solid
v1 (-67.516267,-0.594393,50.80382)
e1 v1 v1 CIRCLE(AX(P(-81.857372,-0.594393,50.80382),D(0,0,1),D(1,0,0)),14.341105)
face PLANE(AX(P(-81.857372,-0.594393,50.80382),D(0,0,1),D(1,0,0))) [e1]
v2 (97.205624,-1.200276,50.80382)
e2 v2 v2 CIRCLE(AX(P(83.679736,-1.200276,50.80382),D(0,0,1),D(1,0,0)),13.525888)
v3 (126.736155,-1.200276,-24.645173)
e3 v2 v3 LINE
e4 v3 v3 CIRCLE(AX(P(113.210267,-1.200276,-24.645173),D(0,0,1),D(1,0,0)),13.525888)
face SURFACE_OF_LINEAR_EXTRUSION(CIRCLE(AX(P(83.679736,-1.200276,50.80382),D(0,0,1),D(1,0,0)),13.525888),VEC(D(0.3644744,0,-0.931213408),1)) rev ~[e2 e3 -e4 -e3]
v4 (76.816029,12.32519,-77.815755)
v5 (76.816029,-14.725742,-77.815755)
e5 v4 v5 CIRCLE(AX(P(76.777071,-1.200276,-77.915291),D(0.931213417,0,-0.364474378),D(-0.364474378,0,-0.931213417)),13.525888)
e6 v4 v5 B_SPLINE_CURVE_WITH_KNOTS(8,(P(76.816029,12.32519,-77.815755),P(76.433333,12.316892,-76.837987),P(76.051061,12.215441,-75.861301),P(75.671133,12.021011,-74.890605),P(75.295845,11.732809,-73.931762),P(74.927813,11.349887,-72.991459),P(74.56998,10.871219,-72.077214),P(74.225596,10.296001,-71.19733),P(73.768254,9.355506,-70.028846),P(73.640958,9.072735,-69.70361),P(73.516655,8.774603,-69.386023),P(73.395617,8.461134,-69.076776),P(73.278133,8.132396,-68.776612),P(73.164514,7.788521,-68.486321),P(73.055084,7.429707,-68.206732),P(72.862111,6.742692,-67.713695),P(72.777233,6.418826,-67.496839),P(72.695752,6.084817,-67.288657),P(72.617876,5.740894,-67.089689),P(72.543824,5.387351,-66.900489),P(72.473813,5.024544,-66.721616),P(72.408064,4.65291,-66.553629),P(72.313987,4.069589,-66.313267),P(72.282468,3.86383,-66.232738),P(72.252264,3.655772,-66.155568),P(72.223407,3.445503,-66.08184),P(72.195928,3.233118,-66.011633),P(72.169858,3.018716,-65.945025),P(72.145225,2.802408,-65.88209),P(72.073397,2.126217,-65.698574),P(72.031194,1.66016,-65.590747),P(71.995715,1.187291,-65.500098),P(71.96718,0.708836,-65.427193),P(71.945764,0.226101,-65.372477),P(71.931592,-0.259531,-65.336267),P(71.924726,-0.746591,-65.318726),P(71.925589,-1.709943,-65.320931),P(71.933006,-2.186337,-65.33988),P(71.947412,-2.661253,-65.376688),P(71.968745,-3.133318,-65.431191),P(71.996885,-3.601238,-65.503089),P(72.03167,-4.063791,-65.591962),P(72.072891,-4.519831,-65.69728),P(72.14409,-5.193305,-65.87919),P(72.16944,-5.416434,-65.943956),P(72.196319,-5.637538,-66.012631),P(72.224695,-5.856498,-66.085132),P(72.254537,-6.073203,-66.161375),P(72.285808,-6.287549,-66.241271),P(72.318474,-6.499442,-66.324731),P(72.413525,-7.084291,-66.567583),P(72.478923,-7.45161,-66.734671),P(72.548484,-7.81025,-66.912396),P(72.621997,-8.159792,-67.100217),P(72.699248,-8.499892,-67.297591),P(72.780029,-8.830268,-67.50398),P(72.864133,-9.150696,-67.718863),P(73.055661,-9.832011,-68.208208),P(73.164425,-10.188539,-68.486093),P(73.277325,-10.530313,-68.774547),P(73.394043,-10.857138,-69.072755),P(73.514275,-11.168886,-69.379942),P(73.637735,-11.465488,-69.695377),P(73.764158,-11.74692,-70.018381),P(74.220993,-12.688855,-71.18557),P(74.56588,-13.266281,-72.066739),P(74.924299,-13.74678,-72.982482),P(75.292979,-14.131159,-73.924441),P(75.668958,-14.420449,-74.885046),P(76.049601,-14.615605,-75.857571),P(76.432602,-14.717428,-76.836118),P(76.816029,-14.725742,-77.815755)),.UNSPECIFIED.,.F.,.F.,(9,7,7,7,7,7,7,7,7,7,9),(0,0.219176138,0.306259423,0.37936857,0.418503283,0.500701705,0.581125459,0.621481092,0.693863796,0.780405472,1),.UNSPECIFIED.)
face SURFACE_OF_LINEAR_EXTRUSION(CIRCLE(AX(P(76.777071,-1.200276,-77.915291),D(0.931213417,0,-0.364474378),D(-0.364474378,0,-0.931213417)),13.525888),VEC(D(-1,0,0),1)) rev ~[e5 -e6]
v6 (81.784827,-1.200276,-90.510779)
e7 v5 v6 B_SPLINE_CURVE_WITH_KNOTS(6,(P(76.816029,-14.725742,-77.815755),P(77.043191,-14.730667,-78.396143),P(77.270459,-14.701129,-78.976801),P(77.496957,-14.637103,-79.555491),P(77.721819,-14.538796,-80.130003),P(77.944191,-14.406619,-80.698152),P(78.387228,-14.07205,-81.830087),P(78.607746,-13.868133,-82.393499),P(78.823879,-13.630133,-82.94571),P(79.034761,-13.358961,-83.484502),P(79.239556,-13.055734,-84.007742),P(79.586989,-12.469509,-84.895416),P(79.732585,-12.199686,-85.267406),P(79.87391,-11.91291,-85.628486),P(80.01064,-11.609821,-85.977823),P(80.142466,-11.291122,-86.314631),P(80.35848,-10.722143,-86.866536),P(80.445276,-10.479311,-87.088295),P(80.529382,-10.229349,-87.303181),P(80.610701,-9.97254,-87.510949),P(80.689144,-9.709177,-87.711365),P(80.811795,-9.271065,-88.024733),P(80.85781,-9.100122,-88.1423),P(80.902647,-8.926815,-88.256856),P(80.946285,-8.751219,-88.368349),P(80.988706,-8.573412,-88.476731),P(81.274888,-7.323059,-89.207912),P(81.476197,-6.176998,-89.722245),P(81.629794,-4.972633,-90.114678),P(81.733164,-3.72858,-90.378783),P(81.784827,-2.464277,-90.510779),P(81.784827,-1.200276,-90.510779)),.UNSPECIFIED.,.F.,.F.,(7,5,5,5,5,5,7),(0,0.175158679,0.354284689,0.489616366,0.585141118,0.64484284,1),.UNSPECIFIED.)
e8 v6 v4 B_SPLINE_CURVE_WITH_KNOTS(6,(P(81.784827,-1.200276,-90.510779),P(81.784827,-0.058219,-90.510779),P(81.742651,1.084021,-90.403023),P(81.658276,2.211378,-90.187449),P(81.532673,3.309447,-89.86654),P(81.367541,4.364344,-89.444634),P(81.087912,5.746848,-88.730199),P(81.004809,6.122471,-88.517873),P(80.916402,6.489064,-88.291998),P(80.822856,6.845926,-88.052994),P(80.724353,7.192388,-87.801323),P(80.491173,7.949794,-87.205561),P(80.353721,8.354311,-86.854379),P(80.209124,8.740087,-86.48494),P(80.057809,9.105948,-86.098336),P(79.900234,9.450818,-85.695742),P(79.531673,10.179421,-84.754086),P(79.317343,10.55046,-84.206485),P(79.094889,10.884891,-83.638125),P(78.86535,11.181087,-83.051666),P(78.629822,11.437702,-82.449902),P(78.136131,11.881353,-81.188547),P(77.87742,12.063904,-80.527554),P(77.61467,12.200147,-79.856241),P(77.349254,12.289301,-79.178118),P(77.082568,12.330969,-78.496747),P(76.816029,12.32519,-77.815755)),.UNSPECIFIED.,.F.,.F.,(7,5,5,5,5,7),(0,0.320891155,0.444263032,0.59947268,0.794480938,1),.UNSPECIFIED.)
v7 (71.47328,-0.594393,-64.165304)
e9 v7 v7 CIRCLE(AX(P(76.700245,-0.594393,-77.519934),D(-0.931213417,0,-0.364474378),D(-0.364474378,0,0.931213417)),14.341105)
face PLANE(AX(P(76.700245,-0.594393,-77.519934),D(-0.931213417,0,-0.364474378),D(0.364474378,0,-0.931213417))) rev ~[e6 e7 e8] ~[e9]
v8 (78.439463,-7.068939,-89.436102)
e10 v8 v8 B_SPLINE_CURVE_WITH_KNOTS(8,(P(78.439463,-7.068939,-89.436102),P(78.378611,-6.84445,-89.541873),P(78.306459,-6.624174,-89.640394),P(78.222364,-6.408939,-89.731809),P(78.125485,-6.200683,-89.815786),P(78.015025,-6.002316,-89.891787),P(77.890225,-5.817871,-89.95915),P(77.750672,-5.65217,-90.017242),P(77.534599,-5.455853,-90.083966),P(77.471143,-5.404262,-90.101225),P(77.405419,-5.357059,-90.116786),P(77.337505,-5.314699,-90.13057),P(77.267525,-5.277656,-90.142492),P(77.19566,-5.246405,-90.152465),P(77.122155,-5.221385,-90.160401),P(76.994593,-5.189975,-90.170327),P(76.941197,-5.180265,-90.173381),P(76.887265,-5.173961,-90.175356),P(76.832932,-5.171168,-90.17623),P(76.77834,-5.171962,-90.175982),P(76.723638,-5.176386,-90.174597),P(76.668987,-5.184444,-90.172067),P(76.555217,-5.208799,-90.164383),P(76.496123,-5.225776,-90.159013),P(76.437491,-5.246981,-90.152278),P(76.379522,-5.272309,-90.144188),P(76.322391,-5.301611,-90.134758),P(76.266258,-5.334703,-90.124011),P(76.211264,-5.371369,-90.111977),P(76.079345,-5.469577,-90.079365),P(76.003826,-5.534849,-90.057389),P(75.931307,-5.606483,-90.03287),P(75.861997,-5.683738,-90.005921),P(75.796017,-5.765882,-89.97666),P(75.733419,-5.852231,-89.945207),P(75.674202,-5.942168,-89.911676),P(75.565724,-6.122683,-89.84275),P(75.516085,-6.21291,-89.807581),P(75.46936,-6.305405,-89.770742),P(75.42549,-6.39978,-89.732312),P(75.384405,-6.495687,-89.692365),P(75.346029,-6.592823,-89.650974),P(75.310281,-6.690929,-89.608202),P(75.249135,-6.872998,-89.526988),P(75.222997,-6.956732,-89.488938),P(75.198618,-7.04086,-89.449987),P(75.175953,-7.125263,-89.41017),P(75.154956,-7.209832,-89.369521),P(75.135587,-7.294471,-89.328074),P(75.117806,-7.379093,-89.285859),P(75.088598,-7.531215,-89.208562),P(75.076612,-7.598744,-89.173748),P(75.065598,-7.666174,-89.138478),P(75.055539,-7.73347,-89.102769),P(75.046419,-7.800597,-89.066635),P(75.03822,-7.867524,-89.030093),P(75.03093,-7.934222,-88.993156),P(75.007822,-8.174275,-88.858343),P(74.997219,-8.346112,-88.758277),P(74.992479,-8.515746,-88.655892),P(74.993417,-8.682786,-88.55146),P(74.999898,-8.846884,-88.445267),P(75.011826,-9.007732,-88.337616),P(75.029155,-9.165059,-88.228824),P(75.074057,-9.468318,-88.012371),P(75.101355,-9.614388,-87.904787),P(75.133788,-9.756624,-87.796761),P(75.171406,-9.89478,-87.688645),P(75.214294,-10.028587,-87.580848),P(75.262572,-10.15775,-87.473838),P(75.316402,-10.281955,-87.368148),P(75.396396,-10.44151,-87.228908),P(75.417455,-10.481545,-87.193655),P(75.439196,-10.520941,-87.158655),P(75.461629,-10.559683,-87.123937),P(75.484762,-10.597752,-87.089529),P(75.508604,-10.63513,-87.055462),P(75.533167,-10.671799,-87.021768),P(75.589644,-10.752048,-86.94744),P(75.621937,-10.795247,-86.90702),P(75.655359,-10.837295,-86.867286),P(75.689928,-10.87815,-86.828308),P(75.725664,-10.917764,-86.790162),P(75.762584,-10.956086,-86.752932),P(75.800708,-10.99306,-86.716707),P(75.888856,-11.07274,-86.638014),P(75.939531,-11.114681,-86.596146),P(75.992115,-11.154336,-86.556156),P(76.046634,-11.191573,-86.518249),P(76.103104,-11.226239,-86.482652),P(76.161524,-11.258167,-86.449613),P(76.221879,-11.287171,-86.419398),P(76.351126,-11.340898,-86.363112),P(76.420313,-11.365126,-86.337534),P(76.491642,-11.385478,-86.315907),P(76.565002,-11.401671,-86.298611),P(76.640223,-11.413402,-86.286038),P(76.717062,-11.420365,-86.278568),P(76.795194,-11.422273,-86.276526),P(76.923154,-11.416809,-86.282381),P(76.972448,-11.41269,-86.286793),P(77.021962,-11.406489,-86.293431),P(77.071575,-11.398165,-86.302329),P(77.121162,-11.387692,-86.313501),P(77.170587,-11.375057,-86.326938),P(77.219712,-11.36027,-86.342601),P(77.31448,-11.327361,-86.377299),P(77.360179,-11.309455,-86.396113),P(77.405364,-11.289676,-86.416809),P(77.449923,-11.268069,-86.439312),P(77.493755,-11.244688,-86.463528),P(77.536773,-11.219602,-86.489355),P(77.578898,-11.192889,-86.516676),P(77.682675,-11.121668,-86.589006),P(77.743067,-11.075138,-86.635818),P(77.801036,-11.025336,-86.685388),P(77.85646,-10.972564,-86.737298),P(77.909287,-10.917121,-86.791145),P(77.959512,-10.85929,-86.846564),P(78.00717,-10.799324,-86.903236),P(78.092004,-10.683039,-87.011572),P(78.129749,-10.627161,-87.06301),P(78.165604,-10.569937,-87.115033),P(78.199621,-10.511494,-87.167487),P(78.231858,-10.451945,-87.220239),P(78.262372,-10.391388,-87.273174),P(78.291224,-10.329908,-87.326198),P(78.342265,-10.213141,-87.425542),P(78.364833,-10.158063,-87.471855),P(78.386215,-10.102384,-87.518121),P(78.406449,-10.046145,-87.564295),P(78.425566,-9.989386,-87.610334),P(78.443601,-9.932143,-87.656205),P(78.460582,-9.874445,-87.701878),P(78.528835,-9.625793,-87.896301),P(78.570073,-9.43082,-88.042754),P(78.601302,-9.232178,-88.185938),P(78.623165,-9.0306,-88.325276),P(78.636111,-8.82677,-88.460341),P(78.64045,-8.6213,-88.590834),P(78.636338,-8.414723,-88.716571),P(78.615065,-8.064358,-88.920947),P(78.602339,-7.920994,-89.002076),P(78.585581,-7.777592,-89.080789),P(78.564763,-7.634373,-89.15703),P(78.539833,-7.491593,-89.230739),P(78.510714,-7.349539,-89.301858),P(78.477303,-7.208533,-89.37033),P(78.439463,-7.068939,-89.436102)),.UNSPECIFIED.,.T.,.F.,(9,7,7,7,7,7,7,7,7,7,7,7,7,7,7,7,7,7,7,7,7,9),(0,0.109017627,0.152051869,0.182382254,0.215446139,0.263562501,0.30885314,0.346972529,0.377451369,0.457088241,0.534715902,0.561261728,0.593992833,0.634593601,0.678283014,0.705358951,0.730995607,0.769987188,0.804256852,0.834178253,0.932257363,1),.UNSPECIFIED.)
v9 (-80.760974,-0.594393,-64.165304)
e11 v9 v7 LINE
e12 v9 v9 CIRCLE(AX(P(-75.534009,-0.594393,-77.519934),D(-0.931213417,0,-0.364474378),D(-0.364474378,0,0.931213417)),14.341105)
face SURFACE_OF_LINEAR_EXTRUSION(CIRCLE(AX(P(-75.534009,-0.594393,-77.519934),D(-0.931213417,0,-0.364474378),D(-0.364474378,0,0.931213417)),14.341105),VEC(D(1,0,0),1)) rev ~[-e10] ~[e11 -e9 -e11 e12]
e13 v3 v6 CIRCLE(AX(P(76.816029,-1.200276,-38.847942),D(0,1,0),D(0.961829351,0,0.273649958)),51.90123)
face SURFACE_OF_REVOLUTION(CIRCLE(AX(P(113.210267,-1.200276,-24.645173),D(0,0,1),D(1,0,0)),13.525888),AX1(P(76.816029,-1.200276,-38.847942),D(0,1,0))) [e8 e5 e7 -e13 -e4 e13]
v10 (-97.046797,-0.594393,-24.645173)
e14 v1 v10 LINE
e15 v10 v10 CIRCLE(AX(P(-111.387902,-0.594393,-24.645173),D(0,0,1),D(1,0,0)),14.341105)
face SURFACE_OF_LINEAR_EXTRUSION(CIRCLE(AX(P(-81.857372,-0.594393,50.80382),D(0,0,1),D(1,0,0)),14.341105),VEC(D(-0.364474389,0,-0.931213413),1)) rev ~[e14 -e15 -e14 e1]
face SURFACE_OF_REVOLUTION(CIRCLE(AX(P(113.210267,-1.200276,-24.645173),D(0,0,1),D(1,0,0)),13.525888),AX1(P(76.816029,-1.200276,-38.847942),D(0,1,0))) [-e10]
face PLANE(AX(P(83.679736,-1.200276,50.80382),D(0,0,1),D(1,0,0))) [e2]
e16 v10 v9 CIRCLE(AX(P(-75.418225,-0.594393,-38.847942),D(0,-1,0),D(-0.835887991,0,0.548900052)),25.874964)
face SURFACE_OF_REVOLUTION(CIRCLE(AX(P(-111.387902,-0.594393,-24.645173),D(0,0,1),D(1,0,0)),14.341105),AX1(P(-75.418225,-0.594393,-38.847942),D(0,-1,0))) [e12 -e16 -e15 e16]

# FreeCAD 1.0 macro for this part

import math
import FreeCAD as App
import Part
import Sketcher
from FreeCAD import Vector
Q = App.Units.Quantity

doc = App.newDocument("Part")
body = doc.addObject("PartDesign::Body", "Body")

sketch1 = body.newObject("Sketcher::SketchObject", "Sketch")
sketch1.AttachmentSupport = (doc.getObject("XY_Plane"), [""])
sketch1.MapMode = "FlatFace"
sketch1.AttachmentOffset = App.Placement(Vector(0, 0, 50.80382), App.Rotation())
sketch1.addGeometry(Part.Circle(Vector(84, -1, 0), Vector(0, 0, 1), 14), False)
sketch1.addConstraint(Sketcher.Constraint("Diameter", 0, Q("27.051776 mm")))
sketch1.addConstraint(Sketcher.Constraint("DistanceX", -1, 1, 0, 3, Q("83.679736 mm")))
sketch1.addConstraint(Sketcher.Constraint("DistanceY", 0, 3, -1, 1, Q("1.200276 mm")))

sketch2 = body.newObject("Sketcher::SketchObject", "Sketch001")
sketch2.AttachmentSupport = (doc.getObject("XZ_Plane"), [""])
sketch2.MapMode = "FlatFace"
sketch2.addGeometry(Part.LineSegment(Vector(84, 51, 0), Vector(113, -25, 0)), False)
sketch2.addGeometry(Part.ArcOfCircle(Part.Circle(Vector(77, -39, 0), Vector(0, 0, 1), 39), math.radians(-90), math.radians(21)), False)
sketch2.addGeometry(Part.LineSegment(Vector(77, -78, 0), Vector(-75, -78, 0)), False)
sketch2.addConstraint(Sketcher.Constraint("Tangent", 0, 2, 1, 2))
sketch2.addConstraint(Sketcher.Constraint("Tangent", 1, 1, 2, 1))
sketch2.addConstraint(Sketcher.Constraint("Horizontal", 2))
sketch2.addConstraint(Sketcher.Constraint("Radius", 1, Q("38.967813 mm")))
sketch2.addConstraint(Sketcher.Constraint("DistanceX", 2, 2, 2, 1, Q("152.234254 mm")))
sketch2.addConstraint(Sketcher.Constraint("DistanceX", -1, 1, 1, 3, Q("76.816029 mm")))
sketch2.addConstraint(Sketcher.Constraint("DistanceY", -1, 1, 0, 1, Q("50.80382 mm")))
sketch2.addConstraint(Sketcher.Constraint("DistanceX", -1, 1, 0, 2, Q("113.103379 mm")))
sketch2.addConstraint(Sketcher.Constraint("DistanceX", 1, 3, 0, 1, Q("6.756819 mm")))
doc.recompute()

additivepipe = body.newObject("PartDesign::AdditivePipe", "AdditivePipe")
additivepipe.Profile = sketch1
additivepipe.Spine = (sketch2, ["Edge1", "Edge2", "Edge3"])

sketch3 = body.newObject("Sketcher::SketchObject", "Sketch002")
sketch3.AttachmentSupport = (doc.getObject("XY_Plane"), [""])
sketch3.MapMode = "FlatFace"
sketch3.AttachmentOffset = App.Placement(Vector(0, 0, 50.80382), App.Rotation())
sketch3.addGeometry(Part.Circle(Vector(-82, -1, 0), Vector(0, 0, 1), 14), False)
sketch3.addConstraint(Sketcher.Constraint("Diameter", 0, Q("28.68221 mm")))
sketch3.addConstraint(Sketcher.Constraint("DistanceX", 0, 3, -1, 1, Q("81.857372 mm")))
sketch3.addConstraint(Sketcher.Constraint("DistanceY", 0, 3, -1, 1, Q("0.594393 mm")))

sketch4 = body.newObject("Sketcher::SketchObject", "Sketch003")
sketch4.AttachmentSupport = (doc.getObject("XZ_Plane"), [""])
sketch4.MapMode = "FlatFace"
sketch4.addGeometry(Part.LineSegment(Vector(-82, 51, 0), Vector(-112, -25, 0)), False)
sketch4.addGeometry(Part.ArcOfCircle(Part.Circle(Vector(-75, -39, 0), Vector(0, 0, 1), 39), math.radians(159), math.radians(270)), False)
sketch4.addGeometry(Part.LineSegment(Vector(-75, -78, 0), Vector(77, -78, 0)), False)
sketch4.addConstraint(Sketcher.Constraint("Tangent", 0, 2, 1, 1))
sketch4.addConstraint(Sketcher.Constraint("Tangent", 1, 2, 2, 1))
sketch4.addConstraint(Sketcher.Constraint("Horizontal", 2))
sketch4.addConstraint(Sketcher.Constraint("Radius", 1, Q("38.967813 mm")))
sketch4.addConstraint(Sketcher.Constraint("DistanceX", 2, 1, 2, 2, Q("152.234254 mm")))
sketch4.addConstraint(Sketcher.Constraint("DistanceY", -1, 1, 0, 1, Q("50.80382 mm")))
sketch4.addConstraint(Sketcher.Constraint("DistanceX", -1, 1, 2, 2, Q("76.816029 mm")))
sketch4.addConstraint(Sketcher.Constraint("DistanceX", 0, 1, 1, 3, Q("6.75682 mm")))
sketch4.addConstraint(Sketcher.Constraint("DistanceX", 0, 2, 1, 3, Q("36.28735 mm")))
doc.recompute()

additivepipe2 = body.newObject("PartDesign::AdditivePipe", "AdditivePipe001")
additivepipe2.Profile = sketch3
additivepipe2.Spine = (sketch4, ["Edge1", "Edge2", "Edge3"])

doc.recompute()
